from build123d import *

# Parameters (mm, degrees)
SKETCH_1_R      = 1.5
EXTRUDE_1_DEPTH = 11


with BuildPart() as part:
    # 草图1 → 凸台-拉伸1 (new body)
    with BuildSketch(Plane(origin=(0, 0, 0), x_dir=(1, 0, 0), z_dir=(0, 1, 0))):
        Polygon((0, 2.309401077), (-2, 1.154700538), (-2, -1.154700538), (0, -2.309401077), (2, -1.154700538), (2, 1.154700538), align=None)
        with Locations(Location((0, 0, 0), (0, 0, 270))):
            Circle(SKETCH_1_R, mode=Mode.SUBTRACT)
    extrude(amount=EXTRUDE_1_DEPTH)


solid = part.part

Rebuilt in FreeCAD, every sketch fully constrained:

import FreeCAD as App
import Part
import Sketcher
from FreeCAD import Vector
Q = App.Units.Quantity

doc = App.newDocument("Part")
body = doc.addObject("PartDesign::Body", "Body")

sketch1 = body.newObject("Sketcher::SketchObject", "Sketch")
sketch1.AttachmentSupport = (doc.getObject("XZ_Plane"), [""])
sketch1.MapMode = "FlatFace"
sketch1.addGeometry([
    Part.LineSegment(Vector(0, -2.3, 0), Vector(-2, -1.2, 0)),
    Part.LineSegment(Vector(-2, -1.2, 0), Vector(-2, 1.2, 0)),
    Part.LineSegment(Vector(-2, 1.2, 0), Vector(0, 2.3, 0)),
    Part.LineSegment(Vector(0, 2.3, 0), Vector(2, 1.2, 0)),
    Part.LineSegment(Vector(2, 1.2, 0), Vector(2, -1.2, 0)),
    Part.LineSegment(Vector(2, -1.2, 0), Vector(0, -2.3, 0)),
    Part.Circle(Vector(0, 0, 0), Vector(0, 0, 1), 1.5),
], False)
sketch1.addConstraint([
    Sketcher.Constraint("Coincident", 0, 2, 1, 1),
    Sketcher.Constraint("Coincident", 1, 2, 2, 1),
    Sketcher.Constraint("Coincident", 2, 2, 3, 1),
    Sketcher.Constraint("Coincident", 3, 2, 4, 1),
    Sketcher.Constraint("Coincident", 4, 2, 5, 1),
    Sketcher.Constraint("Coincident", 5, 2, 0, 1),
    Sketcher.Constraint("Vertical", 1),
    Sketcher.Constraint("Vertical", 4),
    Sketcher.Constraint("Coincident", 6, 3, -1, 1),
    Sketcher.Constraint("Symmetric", 0, 2, 3, 2, -1, 1),
    Sketcher.Constraint("Symmetric", 2, 2, 5, 2, -1, 1),
    Sketcher.Constraint("PointOnObject", 2, 2, -2),
    Sketcher.Constraint("Parallel", 2, 5),
    Sketcher.Constraint("Horizontal", 1, 2, 3, 2),
    Sketcher.Constraint("Diameter", 6, Q("3 mm")),
    Sketcher.Constraint("Angle", 0, Q("150 deg")),
    Sketcher.Constraint("DistanceX", 0, 2, -1, 1, Q("2 mm")),
    Sketcher.Constraint("DistanceY", 1, 1, 1, 2, Q("2.309401 mm")),
])
pad1 = body.newObject("PartDesign::Pad", "Pad")
pad1.Profile = sketch1
pad1.Length = 11
pad1.Reversed = True

doc.recompute()
